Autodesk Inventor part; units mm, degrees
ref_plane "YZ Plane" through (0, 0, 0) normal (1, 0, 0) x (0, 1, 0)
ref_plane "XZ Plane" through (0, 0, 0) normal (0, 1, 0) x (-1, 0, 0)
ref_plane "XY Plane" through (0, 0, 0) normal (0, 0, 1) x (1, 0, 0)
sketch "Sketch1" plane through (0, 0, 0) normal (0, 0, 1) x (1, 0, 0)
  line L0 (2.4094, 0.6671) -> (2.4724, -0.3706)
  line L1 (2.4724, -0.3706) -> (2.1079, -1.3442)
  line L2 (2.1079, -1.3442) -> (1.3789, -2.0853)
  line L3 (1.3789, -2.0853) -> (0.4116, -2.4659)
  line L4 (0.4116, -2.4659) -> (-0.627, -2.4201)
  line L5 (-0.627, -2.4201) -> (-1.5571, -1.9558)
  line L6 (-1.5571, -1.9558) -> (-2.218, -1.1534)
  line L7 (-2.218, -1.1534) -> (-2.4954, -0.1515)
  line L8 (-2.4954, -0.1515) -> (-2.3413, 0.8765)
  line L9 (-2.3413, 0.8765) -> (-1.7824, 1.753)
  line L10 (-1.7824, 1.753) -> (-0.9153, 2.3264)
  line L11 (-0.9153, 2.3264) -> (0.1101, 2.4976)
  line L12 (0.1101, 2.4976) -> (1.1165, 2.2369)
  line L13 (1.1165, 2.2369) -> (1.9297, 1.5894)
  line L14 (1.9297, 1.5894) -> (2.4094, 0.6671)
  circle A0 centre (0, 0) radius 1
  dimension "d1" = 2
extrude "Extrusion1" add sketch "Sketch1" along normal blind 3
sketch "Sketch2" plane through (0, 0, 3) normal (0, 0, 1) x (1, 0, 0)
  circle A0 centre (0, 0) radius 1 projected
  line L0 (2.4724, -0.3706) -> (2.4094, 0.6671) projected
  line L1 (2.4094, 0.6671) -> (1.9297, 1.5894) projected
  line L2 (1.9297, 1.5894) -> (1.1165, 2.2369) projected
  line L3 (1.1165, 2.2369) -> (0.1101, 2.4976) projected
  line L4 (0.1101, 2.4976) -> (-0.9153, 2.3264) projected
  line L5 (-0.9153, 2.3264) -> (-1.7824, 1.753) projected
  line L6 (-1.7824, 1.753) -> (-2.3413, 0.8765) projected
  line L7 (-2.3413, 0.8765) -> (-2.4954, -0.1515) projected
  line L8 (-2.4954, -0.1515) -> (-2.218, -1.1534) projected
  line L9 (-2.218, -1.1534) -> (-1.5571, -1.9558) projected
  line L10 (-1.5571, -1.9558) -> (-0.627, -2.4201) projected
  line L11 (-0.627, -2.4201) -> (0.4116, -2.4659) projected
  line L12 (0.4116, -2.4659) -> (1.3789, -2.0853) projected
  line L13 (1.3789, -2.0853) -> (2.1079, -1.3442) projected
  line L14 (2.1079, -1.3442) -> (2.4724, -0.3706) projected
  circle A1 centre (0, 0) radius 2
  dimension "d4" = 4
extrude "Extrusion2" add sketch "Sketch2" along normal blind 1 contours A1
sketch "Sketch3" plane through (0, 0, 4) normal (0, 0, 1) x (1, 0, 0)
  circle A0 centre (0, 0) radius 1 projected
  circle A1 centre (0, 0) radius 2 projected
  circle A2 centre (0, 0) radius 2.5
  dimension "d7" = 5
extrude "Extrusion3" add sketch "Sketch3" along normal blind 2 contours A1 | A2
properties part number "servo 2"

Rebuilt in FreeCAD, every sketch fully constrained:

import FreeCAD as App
import Part
import Sketcher

V = App.Vector

doc = App.newDocument("Part")
body = doc.addObject("PartDesign::Body", "Body")

# Sketch on XY plane
sketch1 = body.newObject("Sketcher::SketchObject", "Sketch")
sketch1.AttachmentSupport = (doc.getObject("XY_Plane"), [""])
sketch1.MapMode = "FlatFace"
sketch1.addGeometry(Part.LineSegment(V(2.4724, -0.3706, 0), V(2.4094, 0.6671, 0)), False)
sketch1.addGeometry(Part.LineSegment(V(2.4094, 0.6671, 0), V(1.9297, 1.5894, 0)), False)
sketch1.addGeometry(Part.LineSegment(V(1.9297, 1.5894, 0), V(1.1165, 2.2369, 0)), False)
sketch1.addGeometry(Part.LineSegment(V(1.1165, 2.2369, 0), V(0.1101, 2.4976, 0)), False)
sketch1.addGeometry(Part.LineSegment(V(0.1101, 2.4976, 0), V(-0.9153, 2.3264, 0)), False)
sketch1.addGeometry(Part.LineSegment(V(-0.9153, 2.3264, 0), V(-1.7824, 1.753, 0)), False)
sketch1.addGeometry(Part.LineSegment(V(-1.7824, 1.753, 0), V(-2.3413, 0.8765, 0)), False)
sketch1.addGeometry(Part.LineSegment(V(-2.3413, 0.8765, 0), V(-2.4954, -0.1515, 0)), False)
sketch1.addGeometry(Part.LineSegment(V(-2.4954, -0.1515, 0), V(-2.218, -1.1534, 0)), False)
sketch1.addGeometry(Part.LineSegment(V(-2.218, -1.1534, 0), V(-1.5571, -1.9558, 0)), False)
sketch1.addGeometry(Part.LineSegment(V(-1.5571, -1.9558, 0), V(-0.627, -2.4201, 0)), False)
sketch1.addGeometry(Part.LineSegment(V(-0.627, -2.4201, 0), V(0.4116, -2.4659, 0)), False)
sketch1.addGeometry(Part.LineSegment(V(0.4116, -2.4659, 0), V(1.3789, -2.0853, 0)), False)
sketch1.addGeometry(Part.LineSegment(V(1.3789, -2.0853, 0), V(2.1079, -1.3442, 0)), False)
sketch1.addGeometry(Part.LineSegment(V(2.1079, -1.3442, 0), V(2.4724, -0.3706, 0)), False)
sketch1.addGeometry(Part.Circle(V(0, 0, 0), V(0, 0, 1), 1), False)
sketch1.addConstraint(Sketcher.Constraint("Coincident", 0, 2, 1, 1))
sketch1.addConstraint(Sketcher.Constraint("Coincident", 1, 2, 2, 1))
sketch1.addConstraint(Sketcher.Constraint("Coincident", 2, 2, 3, 1))
sketch1.addConstraint(Sketcher.Constraint("Coincident", 3, 2, 4, 1))
sketch1.addConstraint(Sketcher.Constraint("Coincident", 4, 2, 5, 1))
sketch1.addConstraint(Sketcher.Constraint("Coincident", 5, 2, 6, 1))
sketch1.addConstraint(Sketcher.Constraint("Coincident", 6, 2, 7, 1))
sketch1.addConstraint(Sketcher.Constraint("Coincident", 7, 2, 8, 1))
sketch1.addConstraint(Sketcher.Constraint("Coincident", 8, 2, 9, 1))
sketch1.addConstraint(Sketcher.Constraint("Coincident", 9, 2, 10, 1))
sketch1.addConstraint(Sketcher.Constraint("Coincident", 10, 2, 11, 1))
sketch1.addConstraint(Sketcher.Constraint("Coincident", 11, 2, 12, 1))
sketch1.addConstraint(Sketcher.Constraint("Coincident", 12, 2, 13, 1))
sketch1.addConstraint(Sketcher.Constraint("Coincident", 13, 2, 14, 1))
sketch1.addConstraint(Sketcher.Constraint("Coincident", 14, 2, 0, 1))
sketch1.addConstraint(Sketcher.Constraint("Coincident", 15, 3, -1, 1))
sketch1.addConstraint(Sketcher.Constraint("Diameter", 15, 2.0))
sketch1.addConstraint(Sketcher.Constraint("DistanceX", -1, 1, 3, 2, 0.11))
sketch1.addConstraint(Sketcher.Constraint("DistanceY", 10, 2, -1, 1, 2.42))
sketch1.addConstraint(Sketcher.Constraint("DistanceY", 6, 2, 4, 2, 1.45))
sketch1.addConstraint(Sketcher.Constraint("DistanceX", 7, 2, 4, 2, 1.58))
sketch1.addConstraint(Sketcher.Constraint("DistanceY", 8, 2, 6, 2, 2.03))
sketch1.addConstraint(Sketcher.Constraint("DistanceX", 9, 2, 10, 2, 0.93))
sketch1.addConstraint(Sketcher.Constraint("DistanceY", 11, 2, 9, 2, 0.51))
sketch1.addConstraint(Sketcher.Constraint("DistanceY", 14, 2, 1, 2, 1.96))
sketch1.addConstraint(Sketcher.Constraint("DistanceY", -1, 1, 0, 2, 0.667))
sketch1.addConstraint(Sketcher.Constraint("DistanceY", -1, 1, 2, 2, 2.237))
sketch1.addConstraint(Sketcher.Constraint("DistanceY", -1, 1, 5, 2, 1.753))
sketch1.addConstraint(Sketcher.Constraint("DistanceX", 8, 2, -1, 1, 2.218))
sketch1.addConstraint(Sketcher.Constraint("DistanceX", 9, 2, -1, 1, 1.557))
sketch1.addConstraint(Sketcher.Constraint("DistanceY", 11, 2, -1, 1, 2.466))
sketch1.addConstraint(Sketcher.Constraint("DistanceX", -1, 1, 12, 2, 1.379))
sketch1.addConstraint(Sketcher.Constraint("DistanceX", -1, 1, 13, 2, 2.108))
sketch1.addConstraint(Sketcher.Constraint("DistanceX", 2, 2, 0, 2, 1.293))
sketch1.addConstraint(Sketcher.Constraint("DistanceX", 4, 2, 1, 2, 2.845))
sketch1.addConstraint(Sketcher.Constraint("DistanceY", 1, 2, 4, 2, 0.737))
sketch1.addConstraint(Sketcher.Constraint("DistanceX", 5, 2, 4, 2, 0.867))
sketch1.addConstraint(Sketcher.Constraint("DistanceX", 5, 2, 2, 2, 2.899))
sketch1.addConstraint(Sketcher.Constraint("DistanceX", 6, 2, 5, 2, 0.559))
sketch1.addConstraint(Sketcher.Constraint("DistanceY", 6, 2, 3, 2, 1.621))
sketch1.addConstraint(Sketcher.Constraint("DistanceY", 7, 2, 6, 2, 1.028))
sketch1.addConstraint(Sketcher.Constraint("DistanceY", 12, 2, 13, 2, 0.741))
sketch1.addConstraint(Sketcher.Constraint("DistanceY", 10, 2, 13, 2, 1.076))
sketch1.addConstraint(Sketcher.Constraint("DistanceX", 0, 2, 14, 2, 0.063))
sketch1.addConstraint(Sketcher.Constraint("Distance", 0, 1.0396))
sketch1.addConstraint(Sketcher.Constraint("Distance", 3, 1.0396))
sketch1.addConstraint(Sketcher.Constraint("Distance", 11, 1.0396))
pad1 = body.newObject("PartDesign::Pad", "Pad")
pad1.Profile = sketch1
pad1.Length = 3

# Sketch on XY plane
sketch2 = body.newObject("Sketcher::SketchObject", "Sketch001")
sketch2.AttachmentSupport = (doc.getObject("XY_Plane"), [""])
sketch2.MapMode = "FlatFace"
sketch2.AttachmentOffset = App.Placement(V(0, 0, 3), App.Rotation())
sketch2.addGeometry(Part.Circle(V(0, 0, 0), V(0, 0, 1), 2), False)
sketch2.addGeometry(Part.Circle(V(0, 0, 0), V(0, 0, 1), 1), False)
sketch2.addConstraint(Sketcher.Constraint("Coincident", 0, 3, -1, 1))
sketch2.addConstraint(Sketcher.Constraint("Coincident", 1, 3, -1, 1))
sketch2.addConstraint(Sketcher.Constraint("Diameter", 0, 4.0))
sketch2.addConstraint(Sketcher.Constraint("Diameter", 1, 2.0))
pad2 = body.newObject("PartDesign::Pad", "Pad001")
pad2.Profile = sketch2
pad2.Length = 1

# Sketch on XY plane
sketch3 = body.newObject("Sketcher::SketchObject", "Sketch002")
sketch3.AttachmentSupport = (doc.getObject("XY_Plane"), [""])
sketch3.MapMode = "FlatFace"
sketch3.AttachmentOffset = App.Placement(V(0, 0, 4), App.Rotation())
sketch3.addGeometry(Part.Circle(V(0, 0, 0), V(0, 0, 1), 2.5), False)
sketch3.addGeometry(Part.Circle(V(0, 0, 0), V(0, 0, 1), 1), False)
sketch3.addConstraint(Sketcher.Constraint("Coincident", 0, 3, -1, 1))
sketch3.addConstraint(Sketcher.Constraint("Coincident", 1, 3, -1, 1))
sketch3.addConstraint(Sketcher.Constraint("Diameter", 0, 5.0))
sketch3.addConstraint(Sketcher.Constraint("Diameter", 1, 2.0))
pad3 = body.newObject("PartDesign::Pad", "Pad002")
pad3.Profile = sketch3
pad3.Length = 2

doc.recompute()
